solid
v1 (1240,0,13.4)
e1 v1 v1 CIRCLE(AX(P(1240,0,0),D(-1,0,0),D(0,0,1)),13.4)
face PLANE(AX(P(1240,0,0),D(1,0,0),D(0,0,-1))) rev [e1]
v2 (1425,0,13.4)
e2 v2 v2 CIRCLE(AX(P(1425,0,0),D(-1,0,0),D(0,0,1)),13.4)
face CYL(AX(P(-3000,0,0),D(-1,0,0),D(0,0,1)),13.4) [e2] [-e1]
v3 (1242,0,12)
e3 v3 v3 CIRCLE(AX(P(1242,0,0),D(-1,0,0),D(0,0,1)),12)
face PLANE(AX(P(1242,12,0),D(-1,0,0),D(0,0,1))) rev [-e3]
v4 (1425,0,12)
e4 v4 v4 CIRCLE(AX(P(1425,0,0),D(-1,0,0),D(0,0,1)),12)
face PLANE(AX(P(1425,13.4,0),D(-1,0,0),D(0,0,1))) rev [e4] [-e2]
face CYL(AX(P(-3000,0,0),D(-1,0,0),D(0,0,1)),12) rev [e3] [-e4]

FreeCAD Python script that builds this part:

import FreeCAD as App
import Part
import Sketcher
from FreeCAD import Vector
Q = App.Units.Quantity


def add_polygon(sketch, points):
    """Adds a closed chain of lines whose ends are joined by coincident constraints."""
    first, n = sketch.GeometryCount, len(points)
    for a, b in zip(points, points[1:] + points[:1]):
        sketch.addGeometry(Part.LineSegment(App.Vector(*a, 0), App.Vector(*b, 0)), False)
    for i in range(n):
        sketch.addConstraint(Sketcher.Constraint("Coincident", first + i, 2, first + (i + 1) % n, 1))

doc = App.newDocument("Part")
params = doc.addObject("Spreadsheet::Sheet", "Params")
for row, (alias, value) in enumerate([
    ("sketch1_width", "2 mm"),
    ("sketch1_width2", "183 mm"),
    ("sketch1_height", "12 mm"),
    ("sketch1_height2", "13.4 mm"),
    ("revolution_angle", "360 deg"),
], start=1):
    params.set(f"A{row}", alias)
    params.set(f"B{row}", "=" + value)
    params.setAlias(f"B{row}", alias)

body = doc.addObject("PartDesign::Body", "Body")

# Sketch on XY plane
sketch1 = body.newObject("Sketcher::SketchObject", "Sketch")
sketch1.AttachmentSupport = (doc.getObject("XY_Plane"), [""])
sketch1.MapMode = "FlatFace"
add_polygon(sketch1, [(1240, 13.4), (1240, 0), (1242, 0), (1242, 12), (1425, 12), (1425, 13.4)])  # lines 0-5
sketch1.addConstraint([
    Sketcher.Constraint("Vertical", 0),
    Sketcher.Constraint("Horizontal", 1),
    Sketcher.Constraint("Vertical", 2),
    Sketcher.Constraint("Horizontal", 3),
    Sketcher.Constraint("Vertical", 4),
    Sketcher.Constraint("Horizontal", 5),
    Sketcher.Constraint("PointOnObject", 0, 2, -1),
    Sketcher.Constraint("DistanceX", 1, 1, 1, 2, Q("2 mm")),
    Sketcher.Constraint("DistanceX", 3, 1, 3, 2, Q("183 mm")),
    Sketcher.Constraint("DistanceY", 2, 1, 2, 2, Q("12 mm")),
    Sketcher.Constraint("DistanceY", 0, 2, 0, 1, Q("13.4 mm")),
    Sketcher.Constraint("DistanceX", -1, 1, 0, 2, Q("1240 mm")),
])
sketch1.setExpression("Constraints[13]", "Params.sketch1_width")
sketch1.setExpression("Constraints[14]", "Params.sketch1_width2")
sketch1.setExpression("Constraints[15]", "Params.sketch1_height")
sketch1.setExpression("Constraints[16]", "Params.sketch1_height2")
revolution = body.newObject("PartDesign::Revolution", "Revolution")
revolution.Profile = sketch1
revolution.ReferenceAxis = (sketch1, ["H_Axis"])
revolution.setExpression("Angle", "Params.revolution_angle")

doc.recompute()
